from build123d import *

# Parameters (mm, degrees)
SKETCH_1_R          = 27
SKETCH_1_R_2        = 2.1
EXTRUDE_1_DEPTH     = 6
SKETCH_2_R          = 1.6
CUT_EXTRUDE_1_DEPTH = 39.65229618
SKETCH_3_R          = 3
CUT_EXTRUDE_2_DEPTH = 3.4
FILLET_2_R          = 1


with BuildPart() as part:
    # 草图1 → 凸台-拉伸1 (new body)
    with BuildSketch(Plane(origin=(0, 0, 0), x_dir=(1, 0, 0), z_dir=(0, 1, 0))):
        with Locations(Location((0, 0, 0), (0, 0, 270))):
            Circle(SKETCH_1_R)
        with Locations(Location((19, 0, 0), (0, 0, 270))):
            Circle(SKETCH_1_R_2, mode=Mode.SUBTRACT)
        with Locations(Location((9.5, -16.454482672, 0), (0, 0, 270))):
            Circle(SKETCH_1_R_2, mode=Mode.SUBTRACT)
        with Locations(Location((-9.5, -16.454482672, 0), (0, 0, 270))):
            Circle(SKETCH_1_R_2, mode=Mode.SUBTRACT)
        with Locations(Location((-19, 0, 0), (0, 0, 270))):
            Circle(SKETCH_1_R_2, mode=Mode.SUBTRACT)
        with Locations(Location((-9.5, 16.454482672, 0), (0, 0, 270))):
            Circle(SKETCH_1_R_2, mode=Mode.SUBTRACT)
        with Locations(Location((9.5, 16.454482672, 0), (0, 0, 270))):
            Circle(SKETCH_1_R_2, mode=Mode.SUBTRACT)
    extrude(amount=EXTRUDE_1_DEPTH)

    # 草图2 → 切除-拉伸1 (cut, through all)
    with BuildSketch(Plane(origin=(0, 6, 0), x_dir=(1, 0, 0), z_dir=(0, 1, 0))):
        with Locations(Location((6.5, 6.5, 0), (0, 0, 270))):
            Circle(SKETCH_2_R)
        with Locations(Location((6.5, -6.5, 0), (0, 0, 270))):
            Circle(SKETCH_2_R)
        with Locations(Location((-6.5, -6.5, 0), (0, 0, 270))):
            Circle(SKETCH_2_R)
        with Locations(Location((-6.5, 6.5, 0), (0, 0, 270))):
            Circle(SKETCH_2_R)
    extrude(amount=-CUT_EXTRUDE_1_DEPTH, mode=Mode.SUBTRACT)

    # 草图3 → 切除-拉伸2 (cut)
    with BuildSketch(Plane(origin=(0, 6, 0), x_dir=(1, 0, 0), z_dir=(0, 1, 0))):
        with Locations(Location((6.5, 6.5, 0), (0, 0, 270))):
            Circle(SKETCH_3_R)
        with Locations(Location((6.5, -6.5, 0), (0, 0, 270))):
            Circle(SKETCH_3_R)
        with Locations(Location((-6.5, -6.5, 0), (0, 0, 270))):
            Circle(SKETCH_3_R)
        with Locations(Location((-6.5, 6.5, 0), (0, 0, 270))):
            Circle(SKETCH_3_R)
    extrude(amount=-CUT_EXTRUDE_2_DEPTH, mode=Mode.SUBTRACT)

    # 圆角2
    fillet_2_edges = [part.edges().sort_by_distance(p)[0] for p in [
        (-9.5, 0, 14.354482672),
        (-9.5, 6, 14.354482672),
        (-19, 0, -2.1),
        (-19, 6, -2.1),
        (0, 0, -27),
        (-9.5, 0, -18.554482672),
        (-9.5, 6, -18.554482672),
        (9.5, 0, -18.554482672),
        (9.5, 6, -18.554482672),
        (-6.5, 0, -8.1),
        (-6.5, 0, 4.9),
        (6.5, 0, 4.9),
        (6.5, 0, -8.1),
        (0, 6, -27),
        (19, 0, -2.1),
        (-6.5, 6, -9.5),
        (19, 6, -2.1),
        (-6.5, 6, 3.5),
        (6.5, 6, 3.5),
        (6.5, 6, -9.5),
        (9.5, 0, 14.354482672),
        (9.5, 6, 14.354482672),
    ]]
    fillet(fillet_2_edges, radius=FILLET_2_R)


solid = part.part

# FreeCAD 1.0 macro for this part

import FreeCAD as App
import Part
import Sketcher

V = App.Vector
Q = App.Units.Quantity


def edges_at(feature, points):
    """Names of the edges that pass closest to the given points."""
    edges = feature.Shape.Edges
    near = lambda p: min(range(len(edges)), key=lambda i: edges[i].distToShape(Part.Vertex(*p))[0])
    return sorted({f"Edge{near(p) + 1}" for p in points})

doc = App.newDocument("Part")
body = doc.addObject("PartDesign::Body", "Body")

# Sketch on XZ plane
sketch1 = body.newObject("Sketcher::SketchObject", "Sketch")
sketch1.AttachmentSupport = (doc.getObject("XZ_Plane"), [""])
sketch1.MapMode = "FlatFace"
sketch1.addGeometry([
    Part.Circle(V(0, 0, 0), V(0, 0, 1), 27),  # 0
    Part.Circle(V(-9.5, -16.5, 0), V(0, 0, 1), 2.1),  # 1
    Part.Circle(V(-19, 0, 0), V(0, 0, 1), 2.1),  # 2
    Part.Circle(V(-9.5, 16.5, 0), V(0, 0, 1), 2.1),  # 3
    Part.Circle(V(9.5, -16.5, 0), V(0, 0, 1), 2.1),  # 4
    Part.Circle(V(19, 0, 0), V(0, 0, 1), 2.1),  # 5
    Part.Circle(V(9.5, 16.5, 0), V(0, 0, 1), 2.1),  # 6
], False)
sketch1.addConstraint([
    Sketcher.Constraint("Coincident", 0, 3, -1, 1),
    Sketcher.Constraint("Equal", 1, 2),
    Sketcher.Constraint("Equal", 2, 3),
    Sketcher.Constraint("Equal", 3, 4),
    Sketcher.Constraint("Equal", 4, 5),
    Sketcher.Constraint("Equal", 5, 6),
    Sketcher.Constraint("Symmetric", 3, 3, 4, 3, -1, 1),
    Sketcher.Constraint("Symmetric", 2, 3, 5, 3, -1, 1),
    Sketcher.Constraint("Symmetric", 1, 3, 6, 3, -1, 1),
    Sketcher.Constraint("Symmetric", 1, 3, 4, 3, -2),
    Sketcher.Constraint("PointOnObject", 2, 3, -1),
    Sketcher.Constraint("Diameter", 0, Q("54 mm")),
    Sketcher.Constraint("Diameter", 1, Q("4.2 mm")),
    Sketcher.Constraint("DistanceX", 2, 3, -1, 1, Q("19 mm")),
    Sketcher.Constraint("DistanceX", 1, 3, 4, 3, Q("19 mm")),
    Sketcher.Constraint("DistanceY", 1, 3, -1, 1, Q("16.454483 mm")),
])
pad1 = body.newObject("PartDesign::Pad", "Pad")
pad1.Profile = sketch1
pad1.Length = 6
pad1.Reversed = True

# Sketch on XZ plane
sketch2 = body.newObject("Sketcher::SketchObject", "Sketch001")
sketch2.AttachmentSupport = (doc.getObject("XZ_Plane"), [""])
sketch2.MapMode = "FlatFace"
sketch2.AttachmentOffset = App.Placement(V(0, 0, -6), App.Rotation())
sketch2.addGeometry([
    Part.Circle(V(6.5, -6.5, 0), V(0, 0, 1), 1.6),
    Part.Circle(V(6.5, 6.5, 0), V(0, 0, 1), 1.6),
    Part.Circle(V(-6.5, 6.5, 0), V(0, 0, 1), 1.6),
    Part.Circle(V(-6.5, -6.5, 0), V(0, 0, 1), 1.6),
], False)
sketch2.addConstraint([
    Sketcher.Constraint("Equal", 0, 1),
    Sketcher.Constraint("Equal", 1, 2),
    Sketcher.Constraint("Equal", 2, 3),
    Sketcher.Constraint("Symmetric", 0, 3, 2, 3, -1, 1),
    Sketcher.Constraint("Symmetric", 1, 3, 3, 3, -1, 1),
    Sketcher.Constraint("Symmetric", 1, 3, 2, 3, -2),
    Sketcher.Constraint("Diameter", 0, Q("3.2 mm")),
    Sketcher.Constraint("DistanceY", 0, 3, 1, 3, Q("13 mm")),
    Sketcher.Constraint("DistanceX", 2, 3, 1, 3, Q("13 mm")),
])
pocket1 = body.newObject("PartDesign::Pocket", "Pocket")
pocket1.Profile = sketch2
pocket1.Type = "ThroughAll"
pocket1.Reversed = True

# Sketch on XZ plane
sketch3 = body.newObject("Sketcher::SketchObject", "Sketch002")
sketch3.AttachmentSupport = (doc.getObject("XZ_Plane"), [""])
sketch3.MapMode = "FlatFace"
sketch3.AttachmentOffset = App.Placement(V(0, 0, -6), App.Rotation())
sketch3.addGeometry([
    Part.Circle(V(6.5, -6.5, 0), V(0, 0, 1), 3),
    Part.Circle(V(6.5, 6.5, 0), V(0, 0, 1), 3),
    Part.Circle(V(-6.5, 6.5, 0), V(0, 0, 1), 3),
    Part.Circle(V(-6.5, -6.5, 0), V(0, 0, 1), 3),
], False)
sketch3.addConstraint([
    Sketcher.Constraint("Equal", 0, 1),
    Sketcher.Constraint("Equal", 1, 2),
    Sketcher.Constraint("Equal", 2, 3),
    Sketcher.Constraint("Symmetric", 0, 3, 2, 3, -1, 1),
    Sketcher.Constraint("Symmetric", 1, 3, 3, 3, -1, 1),
    Sketcher.Constraint("Symmetric", 1, 3, 2, 3, -2),
    Sketcher.Constraint("Diameter", 0, Q("6 mm")),
    Sketcher.Constraint("DistanceY", 0, 3, 1, 3, Q("13 mm")),
    Sketcher.Constraint("DistanceX", 2, 3, 1, 3, Q("13 mm")),
])
pocket2 = body.newObject("PartDesign::Pocket", "Pocket001")
pocket2.Profile = sketch3
pocket2.Length = 3.4
pocket2.Reversed = True
doc.recompute()

fillet = body.newObject("PartDesign::Fillet", "Fillet")
fillet.Base = (pocket2, edges_at(pocket2, [
    (-9.5, 0, 14.354),
    (-9.5, 6, 14.354),
    (-19, 0, -2.1),
    (-19, 6, -2.1),
    (0, 0, -27),
    (-9.5, 0, -18.554),
    (-9.5, 6, -18.554),
    (9.5, 0, -18.554),
    (9.5, 6, -18.554),
    (-6.5, 0, -8.1),
    (-6.5, 0, 4.9),
    (6.5, 0, 4.9),
    (6.5, 0, -8.1),
    (0, 6, -27),
    (19, 0, -2.1),
    (-6.5, 6, -9.5),
    (19, 6, -2.1),
    (-6.5, 6, 3.5),
    (6.5, 6, 3.5),
    (6.5, 6, -9.5),
    (9.5, 0, 14.354),
    (9.5, 6, 14.354),
]))
fillet.Radius = 1

doc.recompute()
